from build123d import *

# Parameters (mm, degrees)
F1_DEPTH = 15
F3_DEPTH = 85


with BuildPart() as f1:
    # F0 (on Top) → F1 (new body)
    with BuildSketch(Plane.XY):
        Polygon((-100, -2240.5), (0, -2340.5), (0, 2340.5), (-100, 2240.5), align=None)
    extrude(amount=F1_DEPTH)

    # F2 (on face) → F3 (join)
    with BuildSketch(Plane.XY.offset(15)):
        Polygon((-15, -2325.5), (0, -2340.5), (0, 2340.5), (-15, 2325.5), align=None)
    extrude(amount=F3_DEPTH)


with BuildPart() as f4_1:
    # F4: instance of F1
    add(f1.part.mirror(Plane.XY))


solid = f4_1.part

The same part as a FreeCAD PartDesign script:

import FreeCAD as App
import Part
import Sketcher
from FreeCAD import Vector


def add_polygon(sketch, points):
    """Adds a closed chain of lines whose ends are joined by coincident constraints."""
    first, n = sketch.GeometryCount, len(points)
    for a, b in zip(points, points[1:] + points[:1]):
        sketch.addGeometry(Part.LineSegment(App.Vector(*a, 0), App.Vector(*b, 0)), False)
    for i in range(n):
        sketch.addConstraint(Sketcher.Constraint("Coincident", first + i, 2, first + (i + 1) % n, 1))

doc = App.newDocument("Part")
body = doc.addObject("PartDesign::Body", "Body")

sketch1 = body.newObject("Sketcher::SketchObject", "Sketch")
sketch1.AttachmentSupport = (doc.getObject("XY_Plane"), [""])
sketch1.MapMode = "FlatFace"
add_polygon(sketch1, [(-100, -2240.5), (0, -2340.5), (0, 2340.5), (-100, 2240.5)])
sketch1.addConstraint([
    Sketcher.Constraint("Vertical", 1),
    Sketcher.Constraint("Vertical", 3),
    Sketcher.Constraint("Symmetric", 0, 2, 1, 2, -1, 1),
    Sketcher.Constraint("Perpendicular", 0, 2),
    Sketcher.Constraint("Equal", 0, 2),
    Sketcher.Constraint("DistanceY", 1, 1, 1, 2, 4681.0),
    Sketcher.Constraint("DistanceY", 3, 2, 3, 1, 4481.0),
])
pad1 = body.newObject("PartDesign::Pad", "Pad")
pad1.Profile = sketch1
pad1.Length = 15

sketch2 = body.newObject("Sketcher::SketchObject", "Sketch001")
sketch2.AttachmentSupport = (doc.getObject("XY_Plane"), [""])
sketch2.MapMode = "FlatFace"
sketch2.AttachmentOffset = App.Placement(Vector(0, 0, 15), App.Rotation())
add_polygon(sketch2, [(-15, -2325.5), (0, -2340.5), (0, 2340.5), (-15, 2325.5)])
sketch2.addConstraint([
    Sketcher.Constraint("Vertical", 1),
    Sketcher.Constraint("Vertical", 3),
    Sketcher.Constraint("Symmetric", 0, 2, 1, 2, -1, 1),
    Sketcher.Constraint("Perpendicular", 0, 2),
    Sketcher.Constraint("Equal", 0, 2),
    Sketcher.Constraint("DistanceY", 1, 1, 1, 2, 4681.0),
    Sketcher.Constraint("DistanceY", 3, 2, 3, 1, 4651.0),
])
pad2 = body.newObject("PartDesign::Pad", "Pad001")
pad2.Profile = sketch2
pad2.Length = 85
body2 = doc.addObject("PartDesign::Body", "Body001")
doc.recompute()

mirroring = doc.addObject("Part::Mirroring", "Mirroring")
mirroring.Source = body
mirroring.Base = Vector(0, 0, 0)
mirroring.Normal = Vector(0, 0, 1)
body2.BaseFeature = mirroring
doc.recompute()
body.Visibility = False
mirroring.Visibility = False

doc.recompute()
